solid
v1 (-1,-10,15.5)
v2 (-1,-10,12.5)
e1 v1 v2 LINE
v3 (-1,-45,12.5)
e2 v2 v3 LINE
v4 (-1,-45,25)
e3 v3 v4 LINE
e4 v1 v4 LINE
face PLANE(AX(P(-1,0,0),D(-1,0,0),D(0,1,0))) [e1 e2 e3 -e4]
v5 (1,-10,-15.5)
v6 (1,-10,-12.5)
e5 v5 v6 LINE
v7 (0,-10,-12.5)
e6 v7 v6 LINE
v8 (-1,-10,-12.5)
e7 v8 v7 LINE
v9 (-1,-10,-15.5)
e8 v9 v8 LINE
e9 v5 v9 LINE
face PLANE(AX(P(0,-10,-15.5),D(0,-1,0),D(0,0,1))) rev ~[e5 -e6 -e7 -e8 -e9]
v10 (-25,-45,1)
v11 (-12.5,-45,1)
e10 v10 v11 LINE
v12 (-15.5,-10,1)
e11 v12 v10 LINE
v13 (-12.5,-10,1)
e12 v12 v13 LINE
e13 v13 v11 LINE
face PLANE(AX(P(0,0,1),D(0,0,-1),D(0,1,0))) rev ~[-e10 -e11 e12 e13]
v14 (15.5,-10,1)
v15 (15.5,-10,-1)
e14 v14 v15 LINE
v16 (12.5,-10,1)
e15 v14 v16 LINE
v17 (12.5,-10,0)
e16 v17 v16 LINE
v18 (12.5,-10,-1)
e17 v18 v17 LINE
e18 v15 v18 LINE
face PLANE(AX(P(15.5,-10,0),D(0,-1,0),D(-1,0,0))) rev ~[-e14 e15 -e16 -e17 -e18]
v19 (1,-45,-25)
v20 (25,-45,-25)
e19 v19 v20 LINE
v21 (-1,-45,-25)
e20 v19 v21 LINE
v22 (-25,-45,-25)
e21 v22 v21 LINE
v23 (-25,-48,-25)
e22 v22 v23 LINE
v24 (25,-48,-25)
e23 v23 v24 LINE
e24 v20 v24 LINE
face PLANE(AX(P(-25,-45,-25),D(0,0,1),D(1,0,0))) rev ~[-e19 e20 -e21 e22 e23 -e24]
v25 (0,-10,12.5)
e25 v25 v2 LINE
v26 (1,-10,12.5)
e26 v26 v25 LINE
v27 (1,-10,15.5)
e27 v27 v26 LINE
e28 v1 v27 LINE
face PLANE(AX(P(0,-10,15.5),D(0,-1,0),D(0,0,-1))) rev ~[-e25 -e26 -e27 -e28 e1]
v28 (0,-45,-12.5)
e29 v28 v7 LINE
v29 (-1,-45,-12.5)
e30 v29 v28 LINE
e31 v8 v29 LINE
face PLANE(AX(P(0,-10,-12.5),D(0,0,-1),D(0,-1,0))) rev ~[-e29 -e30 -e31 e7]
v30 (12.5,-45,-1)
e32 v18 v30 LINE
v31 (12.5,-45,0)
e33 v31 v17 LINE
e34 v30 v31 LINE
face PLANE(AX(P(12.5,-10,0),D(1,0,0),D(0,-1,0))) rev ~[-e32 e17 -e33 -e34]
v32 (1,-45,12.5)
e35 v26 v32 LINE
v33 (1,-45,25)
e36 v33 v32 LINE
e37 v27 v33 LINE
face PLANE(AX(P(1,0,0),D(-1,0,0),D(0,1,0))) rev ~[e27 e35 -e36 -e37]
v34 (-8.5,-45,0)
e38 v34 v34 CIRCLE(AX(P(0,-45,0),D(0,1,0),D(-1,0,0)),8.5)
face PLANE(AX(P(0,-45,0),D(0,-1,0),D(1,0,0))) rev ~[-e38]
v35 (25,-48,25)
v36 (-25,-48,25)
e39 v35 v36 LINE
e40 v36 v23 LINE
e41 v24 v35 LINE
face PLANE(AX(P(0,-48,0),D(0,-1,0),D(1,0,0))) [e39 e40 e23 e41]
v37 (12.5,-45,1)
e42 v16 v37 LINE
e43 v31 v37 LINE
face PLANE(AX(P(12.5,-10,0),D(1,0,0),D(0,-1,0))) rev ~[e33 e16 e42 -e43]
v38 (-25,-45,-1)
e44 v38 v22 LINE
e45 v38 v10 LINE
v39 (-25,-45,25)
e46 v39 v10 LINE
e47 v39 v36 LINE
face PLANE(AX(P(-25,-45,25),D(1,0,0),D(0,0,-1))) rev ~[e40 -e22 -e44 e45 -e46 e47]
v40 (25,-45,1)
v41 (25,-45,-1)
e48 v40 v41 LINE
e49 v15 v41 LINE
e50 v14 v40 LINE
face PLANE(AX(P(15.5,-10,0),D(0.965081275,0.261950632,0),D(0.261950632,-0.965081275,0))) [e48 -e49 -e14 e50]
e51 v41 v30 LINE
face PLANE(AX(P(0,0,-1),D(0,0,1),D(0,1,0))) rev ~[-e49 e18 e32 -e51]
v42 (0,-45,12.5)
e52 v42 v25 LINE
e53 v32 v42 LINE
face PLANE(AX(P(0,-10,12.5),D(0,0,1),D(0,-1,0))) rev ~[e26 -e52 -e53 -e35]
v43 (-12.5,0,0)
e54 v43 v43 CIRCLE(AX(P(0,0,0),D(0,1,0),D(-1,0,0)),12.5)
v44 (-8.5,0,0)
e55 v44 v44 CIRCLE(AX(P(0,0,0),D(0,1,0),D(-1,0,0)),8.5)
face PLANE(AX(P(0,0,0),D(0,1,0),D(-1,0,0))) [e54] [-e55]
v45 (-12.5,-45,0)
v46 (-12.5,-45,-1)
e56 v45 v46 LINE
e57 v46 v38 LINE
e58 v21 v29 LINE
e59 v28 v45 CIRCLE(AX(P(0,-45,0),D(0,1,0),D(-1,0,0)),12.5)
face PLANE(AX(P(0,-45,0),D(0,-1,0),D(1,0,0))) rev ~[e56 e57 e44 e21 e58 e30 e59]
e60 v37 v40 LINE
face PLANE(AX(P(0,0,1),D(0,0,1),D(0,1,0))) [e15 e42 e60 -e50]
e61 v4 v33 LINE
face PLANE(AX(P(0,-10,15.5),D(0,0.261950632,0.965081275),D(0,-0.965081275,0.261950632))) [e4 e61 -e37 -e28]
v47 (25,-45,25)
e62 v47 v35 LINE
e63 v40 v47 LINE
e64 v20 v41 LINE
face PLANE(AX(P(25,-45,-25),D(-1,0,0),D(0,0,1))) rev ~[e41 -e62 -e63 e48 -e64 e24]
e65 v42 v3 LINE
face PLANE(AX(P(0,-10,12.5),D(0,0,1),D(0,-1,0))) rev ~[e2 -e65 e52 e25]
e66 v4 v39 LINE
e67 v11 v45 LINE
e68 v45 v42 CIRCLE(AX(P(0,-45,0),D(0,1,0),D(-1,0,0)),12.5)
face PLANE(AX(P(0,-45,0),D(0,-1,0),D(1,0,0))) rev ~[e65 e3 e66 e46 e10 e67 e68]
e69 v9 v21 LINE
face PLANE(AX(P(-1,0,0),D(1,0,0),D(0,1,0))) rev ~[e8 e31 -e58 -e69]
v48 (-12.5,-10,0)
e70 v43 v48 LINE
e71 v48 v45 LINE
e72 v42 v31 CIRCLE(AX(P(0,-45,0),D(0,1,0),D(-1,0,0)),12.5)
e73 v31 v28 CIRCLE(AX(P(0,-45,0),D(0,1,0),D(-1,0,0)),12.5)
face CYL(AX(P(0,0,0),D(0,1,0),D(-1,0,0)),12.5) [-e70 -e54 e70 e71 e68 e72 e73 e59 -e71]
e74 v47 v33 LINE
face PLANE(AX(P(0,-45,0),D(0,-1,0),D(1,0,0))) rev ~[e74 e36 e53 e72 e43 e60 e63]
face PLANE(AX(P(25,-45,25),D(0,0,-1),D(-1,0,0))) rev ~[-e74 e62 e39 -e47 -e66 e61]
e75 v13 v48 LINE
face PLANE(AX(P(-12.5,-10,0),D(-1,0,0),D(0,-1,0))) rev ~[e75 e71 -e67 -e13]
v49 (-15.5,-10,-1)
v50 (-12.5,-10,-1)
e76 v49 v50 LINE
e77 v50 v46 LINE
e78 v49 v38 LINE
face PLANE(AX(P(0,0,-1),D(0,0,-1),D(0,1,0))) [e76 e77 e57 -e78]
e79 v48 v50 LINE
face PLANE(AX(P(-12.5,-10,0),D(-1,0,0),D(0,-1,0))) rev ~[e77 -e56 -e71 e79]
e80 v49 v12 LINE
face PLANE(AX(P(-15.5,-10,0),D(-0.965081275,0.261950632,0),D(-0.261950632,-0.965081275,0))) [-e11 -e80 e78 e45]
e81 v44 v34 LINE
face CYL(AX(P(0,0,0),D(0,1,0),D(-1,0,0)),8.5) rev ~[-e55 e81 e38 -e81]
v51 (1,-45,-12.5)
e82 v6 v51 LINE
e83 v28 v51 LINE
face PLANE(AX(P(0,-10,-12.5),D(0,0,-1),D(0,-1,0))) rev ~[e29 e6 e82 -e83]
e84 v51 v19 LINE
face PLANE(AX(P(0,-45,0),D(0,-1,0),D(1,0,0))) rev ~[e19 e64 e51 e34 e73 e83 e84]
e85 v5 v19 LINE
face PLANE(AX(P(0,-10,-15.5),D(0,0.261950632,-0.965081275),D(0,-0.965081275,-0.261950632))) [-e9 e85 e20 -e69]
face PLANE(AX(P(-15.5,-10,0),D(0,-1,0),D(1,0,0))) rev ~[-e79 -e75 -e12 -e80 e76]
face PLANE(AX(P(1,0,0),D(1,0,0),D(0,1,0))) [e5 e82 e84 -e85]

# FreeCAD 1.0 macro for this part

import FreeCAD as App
import Part
import Sketcher
Q = App.Units.Quantity


def add_polygon(sketch, points):
    """Adds a closed chain of lines whose ends are joined by coincident constraints."""
    first, n = sketch.GeometryCount, len(points)
    for a, b in zip(points, points[1:] + points[:1]):
        sketch.addGeometry(Part.LineSegment(App.Vector(*a, 0), App.Vector(*b, 0)), False)
    for i in range(n):
        sketch.addConstraint(Sketcher.Constraint("Coincident", first + i, 2, first + (i + 1) % n, 1))

doc = App.newDocument("Part")
body = doc.addObject("PartDesign::Body", "Body")

# Sketch on XZ plane
sketch1 = doc.addObject("Sketcher::SketchObject", "Sketch")
body.addObject(sketch1)
sketch1.AttachmentSupport = (doc.XZ_Plane, [""])
sketch1.MapMode = "FlatFace"
sketch1.addGeometry(Part.Circle(App.Vector(0, 0, 0), App.Vector(0, 0, 1), 12), False)
sketch1.addGeometry(Part.Circle(App.Vector(0, 0, 0), App.Vector(0, 0, 1), 8), False)
sketch1.addConstraint(Sketcher.Constraint("Coincident", 0, 3, -1, 1))
sketch1.addConstraint(Sketcher.Constraint("Coincident", 1, 3, -1, 1))
sketch1.addConstraint(Sketcher.Constraint("Diameter", 0, Q("25 mm")))
sketch1.addConstraint(Sketcher.Constraint("Diameter", 1, Q("17 mm")))
pad1 = doc.addObject("PartDesign::Pad", "Pad")
body.addObject(pad1)
pad1.Profile = sketch1
pad1.Length = 45

# Sketch on XZ plane
sketch2 = doc.addObject("Sketcher::SketchObject", "Sketch001")
body.addObject(sketch2)
sketch2.AttachmentSupport = (doc.XZ_Plane, [""])
sketch2.MapMode = "FlatFace"
sketch2.AttachmentOffset = App.Placement(App.Vector(0, 0, 45), App.Rotation())
add_polygon(sketch2, [(-25, 25), (-25, -25), (25, -25), (25, 25)])  # lines 0-3
sketch2.addConstraint(Sketcher.Constraint("Vertical", 0))
sketch2.addConstraint(Sketcher.Constraint("Horizontal", 1))
sketch2.addConstraint(Sketcher.Constraint("Vertical", 2))
sketch2.addConstraint(Sketcher.Constraint("Horizontal", 3))
sketch2.addConstraint(Sketcher.Constraint("Symmetric", 0, 2, 2, 2, -1, 1))
sketch2.addConstraint(Sketcher.Constraint("Equal", 3, 0))
sketch2.addConstraint(Sketcher.Constraint("DistanceX", 1, 1, 1, 2, Q("50 mm")))
pad2 = doc.addObject("PartDesign::Pad", "Pad001")
body.addObject(pad2)
pad2.Profile = sketch2
pad2.Length = 3

# Sketch on YZ plane
sketch3 = doc.addObject("Sketcher::SketchObject", "Sketch002")
body.addObject(sketch3)
sketch3.AttachmentSupport = (doc.YZ_Plane, [""])
sketch3.MapMode = "FlatFace"
add_polygon(sketch3, [(-10, -15.5), (-10, -12.5), (-45, -12.5), (-45, -25)])  # lines 0-3
sketch3.addConstraint(Sketcher.Constraint("Vertical", 0))
sketch3.addConstraint(Sketcher.Constraint("Horizontal", 1))
sketch3.addConstraint(Sketcher.Constraint("Vertical", 2))
sketch3.addConstraint(Sketcher.Constraint("DistanceY", 0, 1, 0, 2, Q("3 mm")))
sketch3.addConstraint(Sketcher.Constraint("DistanceX", 0, 2, -1, 1, Q("10 mm")))
sketch3.addConstraint(Sketcher.Constraint("DistanceX", 1, 2, 1, 1, Q("35 mm")))
sketch3.addConstraint(Sketcher.Constraint("DistanceY", 2, 2, 2, 1, Q("12.5 mm")))
sketch3.addConstraint(Sketcher.Constraint("DistanceY", 2, 2, -1, 1, Q("25 mm")))
pad3 = doc.addObject("PartDesign::Pad", "Pad002")
body.addObject(pad3)
pad3.Profile = sketch3
pad3.Length = 2
pad3.Midplane = True
doc.recompute()

polarpattern = doc.addObject("PartDesign::PolarPattern", "PolarPattern")
body.addObject(polarpattern)
polarpattern.Originals = [pad3]
polarpattern.Axis = (doc.Y_Axis, [""])
polarpattern.Angle = 360
polarpattern.Occurrences = 4
body.Tip = polarpattern

doc.recompute()
